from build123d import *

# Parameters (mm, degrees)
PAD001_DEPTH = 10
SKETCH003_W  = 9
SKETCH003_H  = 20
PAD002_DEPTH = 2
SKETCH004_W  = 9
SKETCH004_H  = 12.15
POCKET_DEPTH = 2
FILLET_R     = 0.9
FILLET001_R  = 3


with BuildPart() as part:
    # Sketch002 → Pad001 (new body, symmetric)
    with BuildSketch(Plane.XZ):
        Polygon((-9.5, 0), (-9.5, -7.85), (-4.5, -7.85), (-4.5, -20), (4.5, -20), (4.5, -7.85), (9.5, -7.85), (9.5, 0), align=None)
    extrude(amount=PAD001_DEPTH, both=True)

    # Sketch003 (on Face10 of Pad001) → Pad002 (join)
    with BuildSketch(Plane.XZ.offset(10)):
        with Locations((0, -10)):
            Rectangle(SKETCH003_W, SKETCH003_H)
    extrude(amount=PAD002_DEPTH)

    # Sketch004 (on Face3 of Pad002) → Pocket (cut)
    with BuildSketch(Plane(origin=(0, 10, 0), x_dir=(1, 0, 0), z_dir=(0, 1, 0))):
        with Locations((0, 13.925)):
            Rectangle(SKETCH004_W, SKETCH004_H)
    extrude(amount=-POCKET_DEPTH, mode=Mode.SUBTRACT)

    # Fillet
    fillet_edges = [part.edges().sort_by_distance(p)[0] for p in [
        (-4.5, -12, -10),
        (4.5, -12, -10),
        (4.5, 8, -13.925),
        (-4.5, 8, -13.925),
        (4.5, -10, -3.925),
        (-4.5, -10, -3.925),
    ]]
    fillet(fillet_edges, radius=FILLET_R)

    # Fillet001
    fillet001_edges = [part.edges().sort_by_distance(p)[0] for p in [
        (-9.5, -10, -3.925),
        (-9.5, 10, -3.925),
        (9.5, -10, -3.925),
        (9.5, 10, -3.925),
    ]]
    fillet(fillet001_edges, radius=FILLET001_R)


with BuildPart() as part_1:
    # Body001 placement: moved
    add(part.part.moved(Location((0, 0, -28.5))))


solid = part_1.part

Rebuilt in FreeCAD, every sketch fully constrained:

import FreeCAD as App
import Part
import Sketcher
from FreeCAD import Vector


def edges_at(feature, points):
    """Names of the edges that pass closest to the given points."""
    edges = feature.Shape.Edges
    near = lambda p: min(range(len(edges)), key=lambda i: edges[i].distToShape(Part.Vertex(*p))[0])
    return sorted({f"Edge{near(p) + 1}" for p in points})

doc = App.newDocument("Part")
params = doc.addObject("Spreadsheet::Sheet", "Params")
for row, (alias, value) in enumerate([
    ("sketch1_width", "5 mm"),
    ("sketch1_width2", "9 mm"),
    ("sketch1_height", "7.85 mm"),
    ("pad1_length", "20 mm"),
    ("sketch2_width", "9 mm"),
    ("sketch2_height", "20 mm"),
    ("pad2_length", "2 mm"),
    ("sketch3_width", "9 mm"),
    ("sketch3_height", "12.15 mm"),
    ("pocket1_length", "2 mm"),
    ("fillet_radius", "0.9 mm"),
    ("fillet2_radius", "3 mm"),
], start=1):
    params.set(f"A{row}", alias)
    params.set(f"B{row}", "=" + value)
    params.setAlias(f"B{row}", alias)

body = doc.addObject("PartDesign::Body", "Body")

# Sketch on XZ plane
sketch1 = doc.addObject("Sketcher::SketchObject", "Sketch")
body.addObject(sketch1)
sketch1.AttachmentSupport = (doc.XZ_Plane, [""])
sketch1.MapMode = "FlatFace"
sketch1.addGeometry([
    Part.LineSegment(Vector(-10, 0, 0), Vector(-10, -8, 0)),  # 0
    Part.LineSegment(Vector(-10, -8, 0), Vector(-4, -8, 0)),  # 1
    Part.LineSegment(Vector(-4, -8, 0), Vector(-4, -20, 0)),  # 2
    Part.LineSegment(Vector(-4, -20, 0), Vector(4, -20, 0)),  # 3
    Part.LineSegment(Vector(4, -20, 0), Vector(4, -8, 0)),  # 4
    Part.LineSegment(Vector(4, -8, 0), Vector(10, -8, 0)),  # 5
    Part.LineSegment(Vector(10, -8, 0), Vector(10, 0, 0)),  # 6
    Part.LineSegment(Vector(10, 0, 0), Vector(-10, 0, 0)),  # 7
], False)
sketch1.addConstraint([
    Sketcher.Constraint("Coincident", 0, 2, 1, 1),
    Sketcher.Constraint("Coincident", 1, 2, 2, 1),
    Sketcher.Constraint("Coincident", 2, 2, 3, 1),
    Sketcher.Constraint("Coincident", 3, 2, 4, 1),
    Sketcher.Constraint("Coincident", 4, 2, 5, 1),
    Sketcher.Constraint("Coincident", 5, 2, 6, 1),
    Sketcher.Constraint("Coincident", 6, 2, 7, 1),
    Sketcher.Constraint("Coincident", 7, 2, 0, 1),
    Sketcher.Constraint("Vertical", 0),
    Sketcher.Constraint("Horizontal", 1),
    Sketcher.Constraint("Vertical", 2),
    Sketcher.Constraint("Horizontal", 3),
    Sketcher.Constraint("Vertical", 4),
    Sketcher.Constraint("Horizontal", 5),
    Sketcher.Constraint("Vertical", 6),
    Sketcher.Constraint("Horizontal", 7),
    Sketcher.Constraint("Symmetric", 6, 2, 7, 2, -1, 1),
    Sketcher.Constraint("Symmetric", 1, 2, 4, 2, -2),
    Sketcher.Constraint("DistanceX", 1, 1, 1, 2, 5.0),
    Sketcher.Constraint("DistanceX", 3, 1, 3, 2, 9.0),
    Sketcher.Constraint("DistanceY", 2, 2, -1, 1, 20.0),
    Sketcher.Constraint("DistanceY", 0, 2, 0, 1, 7.85),
])
sketch1.setExpression("Constraints[18]", "Params.sketch1_width")
sketch1.setExpression("Constraints[19]", "Params.sketch1_width2")
sketch1.setExpression("Constraints[21]", "Params.sketch1_height")
pad1 = doc.addObject("PartDesign::Pad", "Pad")
body.addObject(pad1)
pad1.Profile = sketch1
pad1.setExpression("Length", "Params.pad1_length")
pad1.Midplane = True

# Sketch on XZ plane
sketch2 = doc.addObject("Sketcher::SketchObject", "Sketch001")
body.addObject(sketch2)
sketch2.AttachmentSupport = (doc.XZ_Plane, [""])
sketch2.MapMode = "FlatFace"
sketch2.AttachmentOffset = App.Placement(Vector(0, 0, 10), App.Rotation())
sketch2.addGeometry([
    Part.LineSegment(Vector(-4, 0, 0), Vector(-4, -20, 0)),
    Part.LineSegment(Vector(-4, -20, 0), Vector(4, -20, 0)),
    Part.LineSegment(Vector(4, -20, 0), Vector(4, 0, 0)),
    Part.LineSegment(Vector(4, 0, 0), Vector(-4, 0, 0)),
], False)
sketch2.addConstraint([
    Sketcher.Constraint("Coincident", 0, 2, 1, 1),
    Sketcher.Constraint("Coincident", 1, 2, 2, 1),
    Sketcher.Constraint("Coincident", 2, 2, 3, 1),
    Sketcher.Constraint("Coincident", 3, 2, 0, 1),
    Sketcher.Constraint("Vertical", 0),
    Sketcher.Constraint("Horizontal", 1),
    Sketcher.Constraint("Vertical", 2),
    Sketcher.Constraint("Horizontal", 3),
    Sketcher.Constraint("Symmetric", 2, 2, 3, 2, -1, 1),
    Sketcher.Constraint("DistanceX", 1, 1, 1, 2, 9.0),
    Sketcher.Constraint("DistanceY", 0, 2, 0, 1, 20.0),
])
sketch2.setExpression("Constraints[9]", "Params.sketch2_width")
sketch2.setExpression("Constraints[10]", "Params.sketch2_height")
pad2 = doc.addObject("PartDesign::Pad", "Pad001")
body.addObject(pad2)
pad2.Profile = sketch2
pad2.setExpression("Length", "Params.pad2_length")

# Sketch on XZ plane
sketch3 = doc.addObject("Sketcher::SketchObject", "Sketch002")
body.addObject(sketch3)
sketch3.AttachmentSupport = (doc.XZ_Plane, [""])
sketch3.MapMode = "FlatFace"
sketch3.AttachmentOffset = App.Placement(Vector(0, 0, -10), App.Rotation())
sketch3.addGeometry([
    Part.LineSegment(Vector(-4, -20, 0), Vector(-4, -8, 0)),
    Part.LineSegment(Vector(-4, -8, 0), Vector(4, -8, 0)),
    Part.LineSegment(Vector(4, -8, 0), Vector(4, -20, 0)),
    Part.LineSegment(Vector(4, -20, 0), Vector(-4, -20, 0)),
], False)
sketch3.addConstraint([
    Sketcher.Constraint("Coincident", 0, 2, 1, 1),
    Sketcher.Constraint("Coincident", 1, 2, 2, 1),
    Sketcher.Constraint("Coincident", 2, 2, 3, 1),
    Sketcher.Constraint("Coincident", 3, 2, 0, 1),
    Sketcher.Constraint("Vertical", 0),
    Sketcher.Constraint("Horizontal", 1),
    Sketcher.Constraint("Vertical", 2),
    Sketcher.Constraint("Horizontal", 3),
    Sketcher.Constraint("DistanceX", 1, 1, 1, 2, 9.0),
    Sketcher.Constraint("DistanceY", 2, 2, -1, 1, 20.0),
    Sketcher.Constraint("DistanceY", 0, 1, 0, 2, 12.15),
    Sketcher.Constraint("DistanceX", 0, 2, -1, 1, 4.5),
])
sketch3.setExpression("Constraints[8]", "Params.sketch3_width")
sketch3.setExpression("Constraints[10]", "Params.sketch3_height")
pocket1 = doc.addObject("PartDesign::Pocket", "Pocket")
body.addObject(pocket1)
pocket1.Profile = sketch3
pocket1.setExpression("Length", "Params.pocket1_length")
pocket1.Reversed = True
doc.recompute()

fillet = doc.addObject("PartDesign::Fillet", "Fillet")
body.addObject(fillet)
fillet.Base = (pocket1, edges_at(pocket1, [
    (-4.5, -12, -10),
    (4.5, -12, -10),
    (4.5, 8, -13.925),
    (-4.5, 8, -13.925),
    (4.5, -10, -3.925),
    (-4.5, -10, -3.925),
]))
fillet.setExpression("Radius", "Params.fillet_radius")
doc.recompute()

fillet2 = doc.addObject("PartDesign::Fillet", "Fillet001")
body.addObject(fillet2)
fillet2.Base = (fillet, edges_at(fillet, [
    (-9.5, -10, -3.925),
    (-9.5, 10, -3.925),
    (9.5, -10, -3.925),
    (9.5, 10, -3.925),
]))
fillet2.setExpression("Radius", "Params.fillet2_radius")
body2 = doc.addObject("PartDesign::Body", "Body001")
doc.recompute()

body.Placement = App.Placement(Vector(0, 0, -28.5), App.Rotation(Vector(0, 0, 1), 0))
boolean = doc.addObject("PartDesign::Boolean", "Boolean")
body2.addObject(boolean)
boolean.Type = "Fuse"
boolean.addObjects([body])

doc.recompute()
